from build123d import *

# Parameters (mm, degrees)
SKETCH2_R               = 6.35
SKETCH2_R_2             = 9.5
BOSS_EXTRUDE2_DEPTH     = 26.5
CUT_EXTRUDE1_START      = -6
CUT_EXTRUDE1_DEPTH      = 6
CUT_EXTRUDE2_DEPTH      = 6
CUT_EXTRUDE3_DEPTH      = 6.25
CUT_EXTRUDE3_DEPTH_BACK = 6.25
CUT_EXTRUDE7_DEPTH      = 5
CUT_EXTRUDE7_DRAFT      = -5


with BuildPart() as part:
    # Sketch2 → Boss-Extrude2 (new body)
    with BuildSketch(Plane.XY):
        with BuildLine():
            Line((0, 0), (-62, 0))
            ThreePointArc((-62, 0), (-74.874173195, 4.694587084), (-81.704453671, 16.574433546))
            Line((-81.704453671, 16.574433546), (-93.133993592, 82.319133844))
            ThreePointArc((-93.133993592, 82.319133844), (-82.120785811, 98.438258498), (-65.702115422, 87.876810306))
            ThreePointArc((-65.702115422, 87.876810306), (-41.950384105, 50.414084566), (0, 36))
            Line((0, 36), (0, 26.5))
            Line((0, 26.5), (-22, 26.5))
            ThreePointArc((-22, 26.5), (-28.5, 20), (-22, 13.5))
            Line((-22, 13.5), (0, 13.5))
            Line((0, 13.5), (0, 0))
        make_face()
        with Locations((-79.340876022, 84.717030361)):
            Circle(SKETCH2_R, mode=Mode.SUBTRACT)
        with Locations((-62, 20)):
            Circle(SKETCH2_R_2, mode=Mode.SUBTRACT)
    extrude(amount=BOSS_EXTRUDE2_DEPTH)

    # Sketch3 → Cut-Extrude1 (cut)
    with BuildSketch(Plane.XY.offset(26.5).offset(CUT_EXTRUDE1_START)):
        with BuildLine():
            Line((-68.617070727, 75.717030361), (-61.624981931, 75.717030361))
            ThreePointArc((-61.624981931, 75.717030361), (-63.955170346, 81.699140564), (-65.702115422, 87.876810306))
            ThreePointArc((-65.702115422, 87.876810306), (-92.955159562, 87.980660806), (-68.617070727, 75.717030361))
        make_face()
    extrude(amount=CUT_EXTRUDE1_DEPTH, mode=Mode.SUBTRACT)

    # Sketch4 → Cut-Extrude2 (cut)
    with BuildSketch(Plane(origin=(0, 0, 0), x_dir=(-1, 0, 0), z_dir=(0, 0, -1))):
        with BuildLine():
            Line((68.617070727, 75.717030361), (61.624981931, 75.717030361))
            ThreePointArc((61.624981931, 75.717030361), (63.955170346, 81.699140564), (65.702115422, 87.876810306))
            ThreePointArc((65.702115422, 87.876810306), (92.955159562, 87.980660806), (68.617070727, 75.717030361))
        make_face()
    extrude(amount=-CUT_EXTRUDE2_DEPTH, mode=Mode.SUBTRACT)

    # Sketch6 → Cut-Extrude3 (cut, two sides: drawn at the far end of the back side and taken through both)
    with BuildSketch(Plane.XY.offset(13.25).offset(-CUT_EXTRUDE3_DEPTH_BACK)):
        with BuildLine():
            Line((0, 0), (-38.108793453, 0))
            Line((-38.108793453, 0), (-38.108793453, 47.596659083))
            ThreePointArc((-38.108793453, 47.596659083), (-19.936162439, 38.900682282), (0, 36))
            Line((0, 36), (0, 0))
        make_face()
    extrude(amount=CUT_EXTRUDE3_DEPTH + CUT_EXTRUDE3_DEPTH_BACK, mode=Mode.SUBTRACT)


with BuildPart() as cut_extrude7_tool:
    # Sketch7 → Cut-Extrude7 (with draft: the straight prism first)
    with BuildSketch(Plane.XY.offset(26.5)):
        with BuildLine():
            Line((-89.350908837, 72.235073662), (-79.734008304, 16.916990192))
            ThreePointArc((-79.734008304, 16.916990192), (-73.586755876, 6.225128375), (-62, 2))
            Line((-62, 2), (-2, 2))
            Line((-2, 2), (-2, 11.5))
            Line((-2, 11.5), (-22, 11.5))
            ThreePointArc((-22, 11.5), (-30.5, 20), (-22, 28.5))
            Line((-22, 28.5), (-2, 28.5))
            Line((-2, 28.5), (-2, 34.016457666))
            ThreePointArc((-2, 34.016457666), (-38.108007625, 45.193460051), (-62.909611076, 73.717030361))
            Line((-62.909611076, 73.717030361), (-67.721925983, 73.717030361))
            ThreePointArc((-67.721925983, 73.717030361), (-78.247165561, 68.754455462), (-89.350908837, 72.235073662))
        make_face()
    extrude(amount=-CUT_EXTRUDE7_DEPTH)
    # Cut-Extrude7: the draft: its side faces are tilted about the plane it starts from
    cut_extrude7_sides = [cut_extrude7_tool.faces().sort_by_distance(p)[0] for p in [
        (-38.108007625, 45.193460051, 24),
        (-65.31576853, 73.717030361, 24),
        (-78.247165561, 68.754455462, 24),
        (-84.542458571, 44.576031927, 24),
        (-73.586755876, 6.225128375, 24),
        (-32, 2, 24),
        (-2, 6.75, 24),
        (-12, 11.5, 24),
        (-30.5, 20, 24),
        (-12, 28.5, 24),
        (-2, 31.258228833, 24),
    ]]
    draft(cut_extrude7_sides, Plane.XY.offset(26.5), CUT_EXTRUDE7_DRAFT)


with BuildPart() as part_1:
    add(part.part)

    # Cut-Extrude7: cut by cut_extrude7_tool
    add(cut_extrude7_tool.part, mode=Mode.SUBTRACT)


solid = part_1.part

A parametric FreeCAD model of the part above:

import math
import FreeCAD as App
import Part
import Sketcher


def faces_at(feature, points):
    """Names of the faces that lie closest to the given points."""
    faces = feature.Shape.Faces
    near = lambda p: min(range(len(faces)), key=lambda i: faces[i].distToShape(Part.Vertex(*p))[0])
    return sorted({f"Face{near(p) + 1}" for p in points})

doc = App.newDocument("Part")
params = doc.addObject("Spreadsheet::Sheet", "Params")
for row, (alias, value) in enumerate([
    ("sketch1_diameter", "19 mm"),
    ("sketch1_radius", "67 mm"),
    ("sketch1_radius2", "14 mm"),
    ("sketch1_radius3", "20 mm"),
    ("sketch1_diameter2", "12.7 mm"),
    ("pad1_length", "26.5 mm"),
    ("sketch2_radius", "67 mm"),
    ("sketch2_radius2", "14 mm"),
    ("pocket1_length", "6 mm"),
    ("sketch3_radius", "14 mm"),
    ("sketch3_radius2", "67 mm"),
    ("pocket2_length", "6 mm"),
    ("sketch4_radius", "67 mm"),
    ("sketch4_height", "36 mm"),
    ("pocket3_length", "6.25 mm"),
    ("pocket3_length2", "6.25 mm"),
    ("sketch5_radius", "18 mm"),
    ("sketch5_radius2", "69 mm"),
    ("sketch5_radius3", "16 mm"),
    ("sketch5_radius4", "8.5 mm"),
    ("sketch5_width", "60 mm"),
    ("pad2_length", "5 mm"),
    ("draft_angle", "5 deg"),
], start=1):
    params.set(f"A{row}", alias)
    params.set(f"B{row}", "=" + value)
    params.setAlias(f"B{row}", alias)

body = doc.addObject("PartDesign::Body", "Body")

# Sketch on XY plane
sketch1 = doc.addObject("Sketcher::SketchObject", "Sketch")
body.addObject(sketch1)
sketch1.AttachmentSupport = (doc.XY_Plane, [""])
sketch1.MapMode = "FlatFace"
sketch1.addGeometry(Part.LineSegment(App.Vector(-62, 0, 0), App.Vector(0, 0, 0)), False)
sketch1.addGeometry(Part.LineSegment(App.Vector(0, 0, 0), App.Vector(0, 13.5, 0)), False)
sketch1.addGeometry(Part.LineSegment(App.Vector(0, 13.5, 0), App.Vector(-22, 13.5, 0)), False)
sketch1.addGeometry(Part.ArcOfCircle(Part.Circle(App.Vector(-22, 20, 0), App.Vector(0, 0, 1), 6.5), math.radians(90), math.radians(270)), False)
sketch1.addGeometry(Part.LineSegment(App.Vector(-22, 26.5, 0), App.Vector(0, 26.5, 0)), False)
sketch1.addGeometry(Part.LineSegment(App.Vector(0, 26.5, 0), App.Vector(0, 36, 0)), False)
sketch1.addGeometry(Part.ArcOfCircle(Part.Circle(App.Vector(-0.430904, 102.998614, 0), App.Vector(0, 0, 1), 67), math.radians(-166.95604), math.radians(-89.631505)), False)
sketch1.addGeometry(Part.ArcOfCircle(Part.Circle(App.Vector(-79.340876, 84.71703, 0), App.Vector(0, 0, 1), 14), math.radians(13.04396), math.radians(189.862152)), False)
sketch1.addGeometry(Part.LineSegment(App.Vector(-93.133994, 82.319134, 0), App.Vector(-81.704454, 16.574434, 0)), False)
sketch1.addGeometry(Part.ArcOfCircle(Part.Circle(App.Vector(-62, 20, 0), App.Vector(0, 0, 1), 20), math.radians(-170.137848), math.radians(-90)), False)
sketch1.addGeometry(Part.Circle(App.Vector(-62, 20, 0), App.Vector(0, 0, 1), 9.5), False)
sketch1.addGeometry(Part.Circle(App.Vector(-79.340876, 84.71703, 0), App.Vector(0, 0, 1), 6.35), False)
sketch1.addConstraint(Sketcher.Constraint("Coincident", 0, 2, 1, 1))
sketch1.addConstraint(Sketcher.Constraint("Coincident", 1, 2, 2, 1))
sketch1.addConstraint(Sketcher.Constraint("Tangent", 2, 2, 3, 2))
sketch1.addConstraint(Sketcher.Constraint("Tangent", 3, 1, 4, 1))
sketch1.addConstraint(Sketcher.Constraint("Coincident", 4, 2, 5, 1))
sketch1.addConstraint(Sketcher.Constraint("Coincident", 5, 2, 6, 2))
sketch1.addConstraint(Sketcher.Constraint("Tangent", 6, 1, 7, 1))
sketch1.addConstraint(Sketcher.Constraint("Tangent", 7, 2, 8, 1))
sketch1.addConstraint(Sketcher.Constraint("Tangent", 8, 2, 9, 1))
sketch1.addConstraint(Sketcher.Constraint("Tangent", 9, 2, 0, 1))
sketch1.addConstraint(Sketcher.Constraint("Horizontal", 0))
sketch1.addConstraint(Sketcher.Constraint("Vertical", 1))
sketch1.addConstraint(Sketcher.Constraint("Horizontal", 2))
sketch1.addConstraint(Sketcher.Constraint("Horizontal", 4))
sketch1.addConstraint(Sketcher.Constraint("Vertical", 5))
sketch1.addConstraint(Sketcher.Constraint("Coincident", 0, 2, -1, 1))
sketch1.addConstraint(Sketcher.Constraint("Coincident", 10, 3, 9, 3))
sketch1.addConstraint(Sketcher.Constraint("Coincident", 11, 3, 7, 3))
sketch1.addConstraint(Sketcher.Constraint("PointOnObject", 4, 2, -2))
sketch1.addConstraint(Sketcher.Constraint("Horizontal", 3, 3, 9, 3))
sketch1.addConstraint(Sketcher.Constraint("Diameter", 10, 19.0))
sketch1.addConstraint(Sketcher.Constraint("Radius", 6, 67.0))
sketch1.addConstraint(Sketcher.Constraint("Radius", 7, 14.0))
sketch1.addConstraint(Sketcher.Constraint("Radius", 9, 20.0))
sketch1.addConstraint(Sketcher.Constraint("Diameter", 11, 12.7))
sketch1.addConstraint(Sketcher.Constraint("Radius", 3, 6.5))
sketch1.addConstraint(Sketcher.Constraint("DistanceX", 0, 1, 0, 2, 62.0))
sketch1.addConstraint(Sketcher.Constraint("DistanceX", 2, 2, 2, 1, 22.0))
sketch1.addConstraint(Sketcher.Constraint("DistanceY", 5, 1, 5, 2, 9.5))
sketch1.addConstraint(Sketcher.Constraint("DistanceY", -1, 1, 7, 3, 84.71703))
sketch1.addConstraint(Sketcher.Constraint("Distance", 8, 66.730802))
sketch1.setExpression("Constraints[20]", "Params.sketch1_diameter")
sketch1.setExpression("Constraints[21]", "Params.sketch1_radius")
sketch1.setExpression("Constraints[22]", "Params.sketch1_radius2")
sketch1.setExpression("Constraints[23]", "Params.sketch1_radius3")
sketch1.setExpression("Constraints[24]", "Params.sketch1_diameter2")
pad1 = doc.addObject("PartDesign::Pad", "Pad")
body.addObject(pad1)
pad1.Profile = sketch1
pad1.setExpression("Length", "Params.pad1_length")

# Sketch on XY plane
sketch2 = doc.addObject("Sketcher::SketchObject", "Sketch001")
body.addObject(sketch2)
sketch2.AttachmentSupport = (doc.XY_Plane, [""])
sketch2.MapMode = "FlatFace"
sketch2.AttachmentOffset = App.Placement(App.Vector(0, 0, 20.5), App.Rotation())
sketch2.addGeometry(Part.LineSegment(App.Vector(-68.617071, 75.71703, 0), App.Vector(-61.624982, 75.71703, 0)), False)
sketch2.addGeometry(Part.ArcOfCircle(Part.Circle(App.Vector(-0.430904, 102.998614, 0), App.Vector(0, 0, 1), 67), math.radians(-166.95604), math.radians(-155.9717)), False)
sketch2.addGeometry(Part.ArcOfCircle(Part.Circle(App.Vector(-79.340876, 84.71703, 0), App.Vector(0, 0, 1), 14), math.radians(13.04396), math.radians(319.994799)), False)
sketch2.addConstraint(Sketcher.Constraint("Coincident", 0, 2, 1, 2))
sketch2.addConstraint(Sketcher.Constraint("Tangent", 1, 1, 2, 1))
sketch2.addConstraint(Sketcher.Constraint("Coincident", 2, 2, 0, 1))
sketch2.addConstraint(Sketcher.Constraint("Horizontal", 0))
sketch2.addConstraint(Sketcher.Constraint("Radius", 1, 67.0))
sketch2.addConstraint(Sketcher.Constraint("Radius", 2, 14.0))
sketch2.addConstraint(Sketcher.Constraint("DistanceY", 0, 2, 2, 3, 9.0))
sketch2.addConstraint(Sketcher.Constraint("DistanceX", 0, 1, 0, 2, 6.992089))
sketch2.addConstraint(Sketcher.Constraint("DistanceY", -1, 1, 2, 3, 84.71703))
sketch2.addConstraint(Sketcher.Constraint("DistanceX", 0, 2, -1, 1, 61.624982))
sketch2.setExpression("Constraints[4]", "Params.sketch2_radius")
sketch2.setExpression("Constraints[5]", "Params.sketch2_radius2")
pocket1 = doc.addObject("PartDesign::Pocket", "Pocket")
body.addObject(pocket1)
pocket1.Profile = sketch2
pocket1.setExpression("Length", "Params.pocket1_length")
pocket1.Reversed = True

# Sketch on XY plane
sketch3 = doc.addObject("Sketcher::SketchObject", "Sketch002")
body.addObject(sketch3)
sketch3.AttachmentSupport = (doc.XY_Plane, [""])
sketch3.MapMode = "FlatFace"
sketch3.addGeometry(Part.LineSegment(App.Vector(-61.624982, 75.71703, 0), App.Vector(-68.617071, 75.71703, 0)), False)
sketch3.addGeometry(Part.ArcOfCircle(Part.Circle(App.Vector(-79.340876, 84.71703, 0), App.Vector(0, 0, 1), 14), math.radians(13.04396), math.radians(319.994799)), False)
sketch3.addGeometry(Part.ArcOfCircle(Part.Circle(App.Vector(-0.430904, 102.998614, 0), App.Vector(0, 0, 1), 67), math.radians(-166.95604), math.radians(-155.9717)), False)
sketch3.addConstraint(Sketcher.Constraint("Coincident", 0, 2, 1, 2))
sketch3.addConstraint(Sketcher.Constraint("Tangent", 1, 1, 2, 1))
sketch3.addConstraint(Sketcher.Constraint("Coincident", 2, 2, 0, 1))
sketch3.addConstraint(Sketcher.Constraint("Horizontal", 0))
sketch3.addConstraint(Sketcher.Constraint("Radius", 1, 14.0))
sketch3.addConstraint(Sketcher.Constraint("Radius", 2, 67.0))
sketch3.addConstraint(Sketcher.Constraint("DistanceY", 0, 2, 1, 3, 9.0))
sketch3.addConstraint(Sketcher.Constraint("DistanceX", 0, 2, 0, 1, 6.992089))
sketch3.addConstraint(Sketcher.Constraint("DistanceY", -1, 1, 1, 3, 84.71703))
sketch3.addConstraint(Sketcher.Constraint("DistanceX", 0, 2, -1, 1, 68.617071))
sketch3.setExpression("Constraints[4]", "Params.sketch3_radius")
sketch3.setExpression("Constraints[5]", "Params.sketch3_radius2")
pocket2 = doc.addObject("PartDesign::Pocket", "Pocket001")
body.addObject(pocket2)
pocket2.Profile = sketch3
pocket2.setExpression("Length", "Params.pocket2_length")
pocket2.Reversed = True

# Sketch on XY plane
sketch4 = doc.addObject("Sketcher::SketchObject", "Sketch003")
body.addObject(sketch4)
sketch4.AttachmentSupport = (doc.XY_Plane, [""])
sketch4.MapMode = "FlatFace"
sketch4.AttachmentOffset = App.Placement(App.Vector(0, 0, 13.25), App.Rotation())
sketch4.addGeometry(Part.LineSegment(App.Vector(-38.108793, 0, 0), App.Vector(0, 0, 0)), False)
sketch4.addGeometry(Part.LineSegment(App.Vector(0, 0, 0), App.Vector(0, 36, 0)), False)
sketch4.addGeometry(Part.ArcOfCircle(Part.Circle(App.Vector(-0.430904, 102.998614, 0), App.Vector(0, 0, 1), 67), math.radians(-124.218927), math.radians(-89.631505)), False)
sketch4.addGeometry(Part.LineSegment(App.Vector(-38.108793, 47.596659, 0), App.Vector(-38.108793, 0, 0)), False)
sketch4.addConstraint(Sketcher.Constraint("Coincident", 0, 2, 1, 1))
sketch4.addConstraint(Sketcher.Constraint("Coincident", 1, 2, 2, 2))
sketch4.addConstraint(Sketcher.Constraint("Coincident", 2, 1, 3, 1))
sketch4.addConstraint(Sketcher.Constraint("Coincident", 3, 2, 0, 1))
sketch4.addConstraint(Sketcher.Constraint("Horizontal", 0))
sketch4.addConstraint(Sketcher.Constraint("Vertical", 1))
sketch4.addConstraint(Sketcher.Constraint("Vertical", 3))
sketch4.addConstraint(Sketcher.Constraint("Coincident", 0, 2, -1, 1))
sketch4.addConstraint(Sketcher.Constraint("Radius", 2, 67.0))
sketch4.addConstraint(Sketcher.Constraint("DistanceY", 1, 1, 1, 2, 36.0))
sketch4.addConstraint(Sketcher.Constraint("DistanceY", 3, 2, 3, 1, 47.596659))
sketch4.addConstraint(Sketcher.Constraint("DistanceX", 0, 1, 0, 2, 38.108793))
sketch4.setExpression("Constraints[8]", "Params.sketch4_radius")
sketch4.setExpression("Constraints[9]", "Params.sketch4_height")
pocket3 = doc.addObject("PartDesign::Pocket", "Pocket002")
body.addObject(pocket3)
pocket3.Profile = sketch4
pocket3.Type = "TwoLengths"
pocket3.setExpression("Length", "Params.pocket3_length")
pocket3.setExpression("Length2", "Params.pocket3_length2")
pocket3.Reversed = True
body2 = doc.addObject("PartDesign::Body", "Body001")

# Sketch on XY plane
sketch5 = doc.addObject("Sketcher::SketchObject", "Sketch004")
body2.addObject(sketch5)
sketch5.AttachmentSupport = (doc.getObject("XY_Plane001"), [""])
sketch5.MapMode = "FlatFace"
sketch5.AttachmentOffset = App.Placement(App.Vector(0, 0, 26.5), App.Rotation())
sketch5.addGeometry(Part.LineSegment(App.Vector(-89.350909, 72.235074, 0), App.Vector(-79.734008, 16.91699, 0)), False)
sketch5.addGeometry(Part.ArcOfCircle(Part.Circle(App.Vector(-62, 20, 0), App.Vector(0, 0, 1), 18), math.radians(-170.137848), math.radians(-90)), False)
sketch5.addGeometry(Part.LineSegment(App.Vector(-62, 2, 0), App.Vector(-2, 2, 0)), False)
sketch5.addGeometry(Part.LineSegment(App.Vector(-2, 2, 0), App.Vector(-2, 11.5, 0)), False)
sketch5.addGeometry(Part.LineSegment(App.Vector(-2, 11.5, 0), App.Vector(-22, 11.5, 0)), False)
sketch5.addGeometry(Part.ArcOfCircle(Part.Circle(App.Vector(-22, 20, 0), App.Vector(0, 0, 1), 8.5), math.radians(90), math.radians(270)), False)
sketch5.addGeometry(Part.LineSegment(App.Vector(-22, 28.5, 0), App.Vector(-2, 28.5, 0)), False)
sketch5.addGeometry(Part.LineSegment(App.Vector(-2, 28.5, 0), App.Vector(-2, 34.016458, 0)), False)
sketch5.addGeometry(Part.ArcOfCircle(Part.Circle(App.Vector(-0.430904, 102.998614, 0), App.Vector(0, 0, 1), 69), math.radians(-154.889158), math.radians(-91.303048)), False)
sketch5.addGeometry(Part.LineSegment(App.Vector(-62.909611, 73.71703, 0), App.Vector(-67.721926, 73.71703, 0)), False)
sketch5.addGeometry(Part.ArcOfCircle(Part.Circle(App.Vector(-79.340876, 84.71703, 0), App.Vector(0, 0, 1), 16), math.radians(-128.728226), math.radians(-43.432537)), False)
sketch5.addConstraint(Sketcher.Constraint("Coincident", 0, 2, 1, 1))
sketch5.addConstraint(Sketcher.Constraint("Coincident", 1, 2, 2, 1))
sketch5.addConstraint(Sketcher.Constraint("Coincident", 2, 2, 3, 1))
sketch5.addConstraint(Sketcher.Constraint("Coincident", 3, 2, 4, 1))
sketch5.addConstraint(Sketcher.Constraint("Coincident", 4, 2, 5, 2))
sketch5.addConstraint(Sketcher.Constraint("Coincident", 5, 1, 6, 1))
sketch5.addConstraint(Sketcher.Constraint("Coincident", 6, 2, 7, 1))
sketch5.addConstraint(Sketcher.Constraint("Coincident", 7, 2, 8, 2))
sketch5.addConstraint(Sketcher.Constraint("Coincident", 8, 1, 9, 1))
sketch5.addConstraint(Sketcher.Constraint("Coincident", 9, 2, 10, 2))
sketch5.addConstraint(Sketcher.Constraint("Coincident", 10, 1, 0, 1))
sketch5.addConstraint(Sketcher.Constraint("Horizontal", 2))
sketch5.addConstraint(Sketcher.Constraint("Vertical", 3))
sketch5.addConstraint(Sketcher.Constraint("Horizontal", 4))
sketch5.addConstraint(Sketcher.Constraint("Horizontal", 6))
sketch5.addConstraint(Sketcher.Constraint("Vertical", 7))
sketch5.addConstraint(Sketcher.Constraint("Horizontal", 9))
sketch5.addConstraint(Sketcher.Constraint("Radius", 1, 18.0))
sketch5.addConstraint(Sketcher.Constraint("Radius", 8, 69.0))
sketch5.addConstraint(Sketcher.Constraint("Radius", 10, 16.0))
sketch5.addConstraint(Sketcher.Constraint("Radius", 5, 8.5))
sketch5.addConstraint(Sketcher.Constraint("DistanceX", 2, 1, 2, 2, 60.0))
sketch5.addConstraint(Sketcher.Constraint("DistanceX", 4, 2, 4, 1, 20.0))
sketch5.addConstraint(Sketcher.Constraint("DistanceX", 6, 1, 6, 2, 20.0))
sketch5.addConstraint(Sketcher.Constraint("DistanceY", 3, 1, 3, 2, 9.5))
sketch5.addConstraint(Sketcher.Constraint("DistanceX", 1, 3, -1, 1, 62.0))
sketch5.addConstraint(Sketcher.Constraint("DistanceY", -1, 1, 1, 3, 20.0))
sketch5.addConstraint(Sketcher.Constraint("DistanceX", 5, 3, -1, 1, 22.0))
sketch5.addConstraint(Sketcher.Constraint("DistanceX", 1, 2, -1, 1, 62.0))
sketch5.addConstraint(Sketcher.Constraint("DistanceX", 5, 1, -1, 1, 22.0))
sketch5.addConstraint(Sketcher.Constraint("DistanceY", 8, 1, 10, 3, 11.0))
sketch5.addConstraint(Sketcher.Constraint("DistanceX", 10, 1, 0, 2, 9.616901))
sketch5.addConstraint(Sketcher.Constraint("DistanceX", 9, 2, 9, 1, 4.812315))
sketch5.addConstraint(Sketcher.Constraint("DistanceY", 7, 1, 7, 2, 5.516458))
sketch5.addConstraint(Sketcher.Constraint("DistanceY", -1, 1, 10, 3, 84.71703))
sketch5.addConstraint(Sketcher.Constraint("DistanceX", 0, 2, -1, 1, 79.734008))
sketch5.addConstraint(Sketcher.Constraint("DistanceX", 8, 1, -1, 1, 62.909611))
sketch5.setExpression("Constraints[17]", "Params.sketch5_radius")
sketch5.setExpression("Constraints[18]", "Params.sketch5_radius2")
sketch5.setExpression("Constraints[19]", "Params.sketch5_radius3")
sketch5.setExpression("Constraints[20]", "Params.sketch5_radius4")
sketch5.setExpression("Constraints[21]", "Params.sketch5_width")
pad2 = doc.addObject("PartDesign::Pad", "Pad001")
body2.addObject(pad2)
pad2.Profile = sketch5
pad2.setExpression("Length", "Params.pad2_length")
pad2.Reversed = True
doc.recompute()

datumplane = doc.addObject("PartDesign::Plane", "DatumPlane")
body2.addObject(datumplane)
datumplane.AttachmentSupport = (doc.getObject("XY_Plane001"), [""])
datumplane.MapMode = "FlatFace"
datumplane.AttachmentOffset = App.Placement(App.Vector(0, 0, 26.5), App.Rotation())
draft = doc.addObject("PartDesign::Draft", "Draft")
body2.addObject(draft)
draft.Base = (pad2, faces_at(pad2, [
    (-38.108, 45.193, 24),
    (-65.316, 73.717, 24),
    (-78.247, 68.754, 24),
    (-84.542, 44.576, 24),
    (-73.587, 6.225, 24),
    (-32, 2, 24),
    (-2, 6.75, 24),
    (-12, 11.5, 24),
    (-30.5, 20, 24),
    (-12, 28.5, 24),
    (-2, 31.258, 24),
]))
draft.NeutralPlane = (datumplane, [""])
draft.setExpression("Angle", "Params.draft_angle")
draft.Reversed = True
doc.recompute()

boolean = doc.addObject("PartDesign::Boolean", "Boolean")
body.addObject(boolean)
boolean.Type = "Cut"
boolean.addObjects([body2])

doc.recompute()
